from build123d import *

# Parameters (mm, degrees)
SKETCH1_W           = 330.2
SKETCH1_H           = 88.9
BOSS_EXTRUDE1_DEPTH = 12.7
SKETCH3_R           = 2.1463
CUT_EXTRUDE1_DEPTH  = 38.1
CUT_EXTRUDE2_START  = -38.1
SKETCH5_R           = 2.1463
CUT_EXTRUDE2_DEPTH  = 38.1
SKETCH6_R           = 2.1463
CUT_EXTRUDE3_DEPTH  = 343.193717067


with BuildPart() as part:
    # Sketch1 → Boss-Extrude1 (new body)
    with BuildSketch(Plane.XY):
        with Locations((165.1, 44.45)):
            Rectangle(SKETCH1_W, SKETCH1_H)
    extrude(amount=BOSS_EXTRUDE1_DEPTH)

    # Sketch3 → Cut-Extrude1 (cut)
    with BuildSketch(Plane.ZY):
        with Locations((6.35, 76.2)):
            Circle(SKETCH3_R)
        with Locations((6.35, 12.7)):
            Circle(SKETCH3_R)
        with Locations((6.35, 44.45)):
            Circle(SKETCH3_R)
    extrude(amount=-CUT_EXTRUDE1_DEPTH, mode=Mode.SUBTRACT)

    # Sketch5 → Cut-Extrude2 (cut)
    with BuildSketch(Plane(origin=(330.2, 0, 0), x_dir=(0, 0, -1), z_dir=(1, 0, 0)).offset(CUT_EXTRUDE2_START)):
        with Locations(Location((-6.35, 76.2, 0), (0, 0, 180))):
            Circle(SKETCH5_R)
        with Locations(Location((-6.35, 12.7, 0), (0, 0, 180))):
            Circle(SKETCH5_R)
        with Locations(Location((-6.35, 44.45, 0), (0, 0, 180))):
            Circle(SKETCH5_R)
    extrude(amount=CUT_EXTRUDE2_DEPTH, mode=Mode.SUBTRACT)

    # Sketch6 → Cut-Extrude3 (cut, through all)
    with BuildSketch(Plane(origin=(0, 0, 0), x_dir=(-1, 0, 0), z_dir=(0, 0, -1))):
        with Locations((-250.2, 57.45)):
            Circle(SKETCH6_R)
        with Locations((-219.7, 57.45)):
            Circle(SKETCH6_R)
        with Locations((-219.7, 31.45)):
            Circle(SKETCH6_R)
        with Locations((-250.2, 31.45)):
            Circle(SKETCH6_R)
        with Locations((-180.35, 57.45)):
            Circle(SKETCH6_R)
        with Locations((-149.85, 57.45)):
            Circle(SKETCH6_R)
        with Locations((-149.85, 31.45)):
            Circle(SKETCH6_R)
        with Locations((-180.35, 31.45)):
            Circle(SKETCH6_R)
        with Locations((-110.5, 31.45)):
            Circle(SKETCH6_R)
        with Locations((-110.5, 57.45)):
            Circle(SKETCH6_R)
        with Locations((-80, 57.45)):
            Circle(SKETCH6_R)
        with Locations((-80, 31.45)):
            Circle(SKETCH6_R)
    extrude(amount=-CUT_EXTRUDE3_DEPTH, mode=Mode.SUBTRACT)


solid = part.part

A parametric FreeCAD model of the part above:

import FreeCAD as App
import Part
import Sketcher

V = App.Vector
Q = App.Units.Quantity


def add_polygon(sketch, points):
    """Adds a closed chain of lines whose ends are joined by coincident constraints."""
    first, n = sketch.GeometryCount, len(points)
    for a, b in zip(points, points[1:] + points[:1]):
        sketch.addGeometry(Part.LineSegment(App.Vector(*a, 0), App.Vector(*b, 0)), False)
    for i in range(n):
        sketch.addConstraint(Sketcher.Constraint("Coincident", first + i, 2, first + (i + 1) % n, 1))

doc = App.newDocument("Part")
params = doc.addObject("Spreadsheet::Sheet", "Params")
for row, (alias, value) in enumerate([
    ("sketch1_width", "13 in"),
    ("sketch1_height", "3.5 in"),
    ("pad1_length", "0.5 in"),
    ("sketch2_diameter", "0.169 in"),
    ("pocket1_length", "1.5 in"),
    ("sketch3_diameter", "0.169 in"),
    ("pocket2_length", "1.5 in"),
    ("sketch4_diameter", "0.169 in"),
], start=1):
    params.set(f"A{row}", alias)
    params.set(f"B{row}", "=" + value)
    params.setAlias(f"B{row}", alias)

body = doc.addObject("PartDesign::Body", "Body")

# Sketch on XY plane
sketch1 = doc.addObject("Sketcher::SketchObject", "Sketch")
body.addObject(sketch1)
sketch1.AttachmentSupport = (doc.XY_Plane, [""])
sketch1.MapMode = "FlatFace"
add_polygon(sketch1, [(0, 89), (0, 0), (330, 0), (330, 89)])  # lines 0-3
sketch1.addConstraint([
    Sketcher.Constraint("Vertical", 0),
    Sketcher.Constraint("Horizontal", 1),
    Sketcher.Constraint("Vertical", 2),
    Sketcher.Constraint("Horizontal", 3),
    Sketcher.Constraint("Coincident", 0, 2, -1, 1),
    Sketcher.Constraint("DistanceX", 1, 1, 1, 2, Q("13 in")),
    Sketcher.Constraint("DistanceY", 0, 2, 0, 1, Q("3.5 in")),
])
sketch1.setExpression("Constraints[9]", "Params.sketch1_width")
sketch1.setExpression("Constraints[10]", "Params.sketch1_height")
pad1 = doc.addObject("PartDesign::Pad", "Pad")
body.addObject(pad1)
pad1.Profile = sketch1
pad1.setExpression("Length", "Params.pad1_length")

# Sketch on YZ plane
sketch2 = doc.addObject("Sketcher::SketchObject", "Sketch001")
body.addObject(sketch2)
sketch2.AttachmentSupport = (doc.YZ_Plane, [""])
sketch2.MapMode = "FlatFace"
sketch2.addGeometry([
    Part.Circle(V(76.2, 6.3, 0), V(0, 0, 1), 2.1),
    Part.Circle(V(12.7, 6.3, 0), V(0, 0, 1), 2.1),
    Part.Circle(V(44.5, 6.3, 0), V(0, 0, 1), 2.1),
], False)
sketch2.addConstraint([
    Sketcher.Constraint("Equal", 0, 1),
    Sketcher.Constraint("Equal", 1, 2),
    Sketcher.Constraint("Horizontal", 0, 3, 1, 3),
    Sketcher.Constraint("Horizontal", 1, 3, 2, 3),
    Sketcher.Constraint("Diameter", 0, Q("0.169 in")),
    Sketcher.Constraint("DistanceX", -1, 1, 0, 3, Q("3 in")),
    Sketcher.Constraint("DistanceX", -1, 1, 1, 3, Q("0.5 in")),
    Sketcher.Constraint("DistanceY", -1, 1, 0, 3, Q("0.25 in")),
    Sketcher.Constraint("DistanceX", -1, 1, 2, 3, Q("1.75 in")),
])
sketch2.setExpression("Constraints[4]", "Params.sketch2_diameter")
pocket1 = doc.addObject("PartDesign::Pocket", "Pocket")
body.addObject(pocket1)
pocket1.Profile = sketch2
pocket1.setExpression("Length", "Params.pocket1_length")
pocket1.Reversed = True

# Sketch on YZ plane
sketch3 = doc.addObject("Sketcher::SketchObject", "Sketch002")
body.addObject(sketch3)
sketch3.AttachmentSupport = (doc.YZ_Plane, [""])
sketch3.MapMode = "FlatFace"
sketch3.AttachmentOffset = App.Placement(V(0, 0, 11.5 * 25.4), App.Rotation())
sketch3.addGeometry([
    Part.Circle(V(76.2, 6.3, 0), V(0, 0, 1), 2.1),
    Part.Circle(V(12.7, 6.3, 0), V(0, 0, 1), 2.1),
    Part.Circle(V(44.5, 6.3, 0), V(0, 0, 1), 2.1),
], False)
sketch3.addConstraint([
    Sketcher.Constraint("Equal", 0, 1),
    Sketcher.Constraint("Equal", 1, 2),
    Sketcher.Constraint("Horizontal", 0, 3, 1, 3),
    Sketcher.Constraint("Horizontal", 1, 3, 2, 3),
    Sketcher.Constraint("Diameter", 0, Q("0.169 in")),
    Sketcher.Constraint("DistanceX", -1, 1, 0, 3, Q("3 in")),
    Sketcher.Constraint("DistanceX", -1, 1, 1, 3, Q("0.5 in")),
    Sketcher.Constraint("DistanceY", -1, 1, 0, 3, Q("0.25 in")),
    Sketcher.Constraint("DistanceX", -1, 1, 2, 3, Q("1.75 in")),
])
sketch3.setExpression("Constraints[4]", "Params.sketch3_diameter")
pocket2 = doc.addObject("PartDesign::Pocket", "Pocket001")
body.addObject(pocket2)
pocket2.Profile = sketch3
pocket2.setExpression("Length", "Params.pocket2_length")
pocket2.Reversed = True

# Sketch on XY plane
sketch4 = doc.addObject("Sketcher::SketchObject", "Sketch003")
body.addObject(sketch4)
sketch4.AttachmentSupport = (doc.XY_Plane, [""])
sketch4.MapMode = "FlatFace"
sketch4.addGeometry([
    Part.Circle(V(250.2, 57.5, 0), V(0, 0, 1), 2.1),  # 0
    Part.Circle(V(219.7, 57.5, 0), V(0, 0, 1), 2.1),  # 1
    Part.Circle(V(219.7, 31.4, 0), V(0, 0, 1), 2.1),  # 2
    Part.Circle(V(250.2, 31.4, 0), V(0, 0, 1), 2.1),  # 3
    Part.Circle(V(180.3, 57.5, 0), V(0, 0, 1), 2.1),  # 4
    Part.Circle(V(149.8, 57.5, 0), V(0, 0, 1), 2.1),  # 5
    Part.Circle(V(149.8, 31.4, 0), V(0, 0, 1), 2.1),  # 6
    Part.Circle(V(180.3, 31.4, 0), V(0, 0, 1), 2.1),  # 7
    Part.Circle(V(110.5, 31.4, 0), V(0, 0, 1), 2.1),  # 8
    Part.Circle(V(110.5, 57.5, 0), V(0, 0, 1), 2.1),  # 9
    Part.Circle(V(80, 57.5, 0), V(0, 0, 1), 2.1),  # 10
    Part.Circle(V(80, 31.4, 0), V(0, 0, 1), 2.1),  # 11
], False)
sketch4.addConstraint([
    Sketcher.Constraint("Equal", 0, 1),
    Sketcher.Constraint("Equal", 1, 2),
    Sketcher.Constraint("Equal", 2, 3),
    Sketcher.Constraint("Equal", 3, 4),
    Sketcher.Constraint("Equal", 4, 5),
    Sketcher.Constraint("Equal", 5, 6),
    Sketcher.Constraint("Equal", 6, 7),
    Sketcher.Constraint("Equal", 7, 8),
    Sketcher.Constraint("Equal", 8, 9),
    Sketcher.Constraint("Equal", 9, 10),
    Sketcher.Constraint("Equal", 10, 11),
    Sketcher.Constraint("Horizontal", 0, 3, 1, 3),
    Sketcher.Constraint("Horizontal", 2, 3, 3, 3),
    Sketcher.Constraint("Horizontal", 1, 3, 4, 3),
    Sketcher.Constraint("Horizontal", 4, 3, 5, 3),
    Sketcher.Constraint("Horizontal", 3, 3, 6, 3),
    Sketcher.Constraint("Horizontal", 6, 3, 7, 3),
    Sketcher.Constraint("Horizontal", 7, 3, 8, 3),
    Sketcher.Constraint("Horizontal", 5, 3, 9, 3),
    Sketcher.Constraint("Horizontal", 9, 3, 10, 3),
    Sketcher.Constraint("Horizontal", 8, 3, 11, 3),
    Sketcher.Constraint("Vertical", 1, 3, 2, 3),
    Sketcher.Constraint("Vertical", 0, 3, 3, 3),
    Sketcher.Constraint("Vertical", 5, 3, 6, 3),
    Sketcher.Constraint("Vertical", 4, 3, 7, 3),
    Sketcher.Constraint("Vertical", 8, 3, 9, 3),
    Sketcher.Constraint("Vertical", 10, 3, 11, 3),
    Sketcher.Constraint("Diameter", 0, Q("0.169 in")),
    Sketcher.Constraint("DistanceX", 4, 3, 0, 3, Q("2.75 in")),
    Sketcher.Constraint("DistanceX", 5, 3, 1, 3, Q("2.75 in")),
    Sketcher.Constraint("DistanceX", 8, 3, 7, 3, Q("2.75 in")),
    Sketcher.Constraint("DistanceX", 10, 3, 5, 3, Q("2.75 in")),
    Sketcher.Constraint("DistanceX", -1, 1, 0, 3, Q("250.2 mm")),
    Sketcher.Constraint("DistanceY", -1, 1, 0, 3, Q("57.45 mm")),
    Sketcher.Constraint("DistanceX", -1, 1, 1, 3, Q("219.7 mm")),
    Sketcher.Constraint("DistanceY", -1, 1, 2, 3, Q("31.45 mm")),
])
sketch4.setExpression("Constraints[27]", "Params.sketch4_diameter")
pocket3 = doc.addObject("PartDesign::Pocket", "Pocket002")
body.addObject(pocket3)
pocket3.Profile = sketch4
pocket3.Type = "ThroughAll"
pocket3.Reversed = True

doc.recompute()
